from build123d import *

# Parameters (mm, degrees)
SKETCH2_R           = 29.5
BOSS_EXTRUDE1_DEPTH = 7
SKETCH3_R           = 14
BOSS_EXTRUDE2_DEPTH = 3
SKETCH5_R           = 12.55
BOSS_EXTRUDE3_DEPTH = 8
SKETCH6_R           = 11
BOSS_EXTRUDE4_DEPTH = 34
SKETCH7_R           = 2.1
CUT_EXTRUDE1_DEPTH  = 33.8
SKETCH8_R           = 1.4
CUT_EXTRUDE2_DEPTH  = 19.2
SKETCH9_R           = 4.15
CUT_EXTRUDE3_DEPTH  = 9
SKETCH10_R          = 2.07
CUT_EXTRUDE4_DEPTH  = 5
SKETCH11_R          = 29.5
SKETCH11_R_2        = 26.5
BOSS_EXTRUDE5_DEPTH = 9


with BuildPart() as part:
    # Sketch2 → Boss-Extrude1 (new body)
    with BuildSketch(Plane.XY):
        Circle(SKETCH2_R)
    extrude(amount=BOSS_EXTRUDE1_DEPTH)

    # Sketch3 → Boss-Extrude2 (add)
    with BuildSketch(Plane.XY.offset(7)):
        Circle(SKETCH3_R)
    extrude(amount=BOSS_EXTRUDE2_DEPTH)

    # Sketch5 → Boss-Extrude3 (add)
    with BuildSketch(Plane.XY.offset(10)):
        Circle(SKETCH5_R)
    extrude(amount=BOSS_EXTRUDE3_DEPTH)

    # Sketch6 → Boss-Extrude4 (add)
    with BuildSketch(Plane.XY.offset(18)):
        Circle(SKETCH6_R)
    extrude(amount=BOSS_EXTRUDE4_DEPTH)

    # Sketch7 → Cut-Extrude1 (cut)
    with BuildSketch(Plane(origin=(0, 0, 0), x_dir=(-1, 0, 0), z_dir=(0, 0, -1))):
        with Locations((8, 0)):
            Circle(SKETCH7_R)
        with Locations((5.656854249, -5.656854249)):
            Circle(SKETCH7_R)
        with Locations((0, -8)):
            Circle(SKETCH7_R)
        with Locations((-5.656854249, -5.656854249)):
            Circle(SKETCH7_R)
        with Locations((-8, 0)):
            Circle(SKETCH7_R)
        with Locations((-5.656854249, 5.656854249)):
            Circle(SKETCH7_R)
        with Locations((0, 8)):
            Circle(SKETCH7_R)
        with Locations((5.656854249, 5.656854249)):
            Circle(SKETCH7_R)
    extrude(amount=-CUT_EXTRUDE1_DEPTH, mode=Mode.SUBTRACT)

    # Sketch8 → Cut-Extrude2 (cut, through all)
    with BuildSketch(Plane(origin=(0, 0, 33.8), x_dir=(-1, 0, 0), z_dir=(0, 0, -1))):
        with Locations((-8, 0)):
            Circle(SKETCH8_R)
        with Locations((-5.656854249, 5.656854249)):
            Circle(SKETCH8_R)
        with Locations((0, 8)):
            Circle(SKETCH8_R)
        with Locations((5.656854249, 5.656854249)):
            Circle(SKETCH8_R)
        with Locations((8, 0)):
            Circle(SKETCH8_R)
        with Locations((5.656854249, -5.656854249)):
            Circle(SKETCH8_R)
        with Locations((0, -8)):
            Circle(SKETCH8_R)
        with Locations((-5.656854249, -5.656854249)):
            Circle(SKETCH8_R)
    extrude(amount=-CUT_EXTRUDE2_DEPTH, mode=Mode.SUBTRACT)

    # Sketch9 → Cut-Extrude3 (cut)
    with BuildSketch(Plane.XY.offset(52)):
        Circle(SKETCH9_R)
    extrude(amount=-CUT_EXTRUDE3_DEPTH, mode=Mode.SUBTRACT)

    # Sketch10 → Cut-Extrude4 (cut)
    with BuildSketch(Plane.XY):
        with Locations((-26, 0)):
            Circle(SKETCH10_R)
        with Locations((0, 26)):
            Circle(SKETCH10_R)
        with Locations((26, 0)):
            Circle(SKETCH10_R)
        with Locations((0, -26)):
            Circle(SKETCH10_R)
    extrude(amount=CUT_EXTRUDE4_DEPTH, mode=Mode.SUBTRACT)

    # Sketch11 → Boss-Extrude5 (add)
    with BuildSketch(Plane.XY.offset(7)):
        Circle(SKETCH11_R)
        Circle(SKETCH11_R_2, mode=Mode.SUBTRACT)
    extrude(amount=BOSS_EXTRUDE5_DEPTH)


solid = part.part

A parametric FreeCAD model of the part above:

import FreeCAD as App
import Part
import Sketcher

V = App.Vector
Q = App.Units.Quantity

doc = App.newDocument("Part")
params = doc.addObject("Spreadsheet::Sheet", "Params")
for row, (alias, value) in enumerate([
    ("sketch1_diameter", "59 mm"),
    ("pad1_length", "7 mm"),
    ("sketch2_diameter", "28 mm"),
    ("pad2_length", "3 mm"),
    ("sketch3_diameter", "25.1 mm"),
    ("pad3_length", "8 mm"),
    ("sketch4_diameter", "22 mm"),
    ("pad4_length", "34 mm"),
    ("sketch5_diameter", "4.2 mm"),
    ("pocket1_length", "33.8 mm"),
    ("sketch6_diameter", "2.8 mm"),
    ("sketch7_diameter", "8.3 mm"),
    ("pocket3_length", "9 mm"),
    ("sketch8_diameter", "4.14 mm"),
    ("pocket4_length", "5 mm"),
    ("sketch9_diameter", "59 mm"),
    ("sketch9_diameter2", "53 mm"),
    ("pad5_length", "9 mm"),
], start=1):
    params.set(f"A{row}", alias)
    params.set(f"B{row}", "=" + value)
    params.setAlias(f"B{row}", alias)

body = doc.addObject("PartDesign::Body", "Body")

# Sketch on XY plane
sketch1 = body.newObject("Sketcher::SketchObject", "Sketch")
sketch1.AttachmentSupport = (doc.getObject("XY_Plane"), [""])
sketch1.MapMode = "FlatFace"
sketch1.addGeometry(Part.Circle(V(0, 0, 0), V(0, 0, 1), 30), False)
sketch1.addConstraint([
    Sketcher.Constraint("Coincident", 0, 3, -1, 1),
    Sketcher.Constraint("Diameter", 0, Q("59 mm")),
])
sketch1.setExpression("Constraints[1]", "Params.sketch1_diameter")
pad1 = body.newObject("PartDesign::Pad", "Pad")
pad1.Profile = sketch1
pad1.setExpression("Length", "Params.pad1_length")

# Sketch on XY plane
sketch2 = body.newObject("Sketcher::SketchObject", "Sketch001")
sketch2.AttachmentSupport = (doc.getObject("XY_Plane"), [""])
sketch2.MapMode = "FlatFace"
sketch2.AttachmentOffset = App.Placement(V(0, 0, 7), App.Rotation())
sketch2.addGeometry(Part.Circle(V(0, 0, 0), V(0, 0, 1), 14), False)
sketch2.addConstraint([
    Sketcher.Constraint("Coincident", 0, 3, -1, 1),
    Sketcher.Constraint("Diameter", 0, Q("28 mm")),
])
sketch2.setExpression("Constraints[1]", "Params.sketch2_diameter")
pad2 = body.newObject("PartDesign::Pad", "Pad001")
pad2.Profile = sketch2
pad2.setExpression("Length", "Params.pad2_length")

# Sketch on XY plane
sketch3 = body.newObject("Sketcher::SketchObject", "Sketch002")
sketch3.AttachmentSupport = (doc.getObject("XY_Plane"), [""])
sketch3.MapMode = "FlatFace"
sketch3.AttachmentOffset = App.Placement(V(0, 0, 10), App.Rotation())
sketch3.addGeometry(Part.Circle(V(0, 0, 0), V(0, 0, 1), 13), False)
sketch3.addConstraint([
    Sketcher.Constraint("Coincident", 0, 3, -1, 1),
    Sketcher.Constraint("Diameter", 0, Q("25.1 mm")),
])
sketch3.setExpression("Constraints[1]", "Params.sketch3_diameter")
pad3 = body.newObject("PartDesign::Pad", "Pad002")
pad3.Profile = sketch3
pad3.setExpression("Length", "Params.pad3_length")

# Sketch on XY plane
sketch4 = body.newObject("Sketcher::SketchObject", "Sketch003")
sketch4.AttachmentSupport = (doc.getObject("XY_Plane"), [""])
sketch4.MapMode = "FlatFace"
sketch4.AttachmentOffset = App.Placement(V(0, 0, 18), App.Rotation())
sketch4.addGeometry(Part.Circle(V(0, 0, 0), V(0, 0, 1), 11), False)
sketch4.addConstraint([
    Sketcher.Constraint("Coincident", 0, 3, -1, 1),
    Sketcher.Constraint("Diameter", 0, Q("22 mm")),
])
sketch4.setExpression("Constraints[1]", "Params.sketch4_diameter")
pad4 = body.newObject("PartDesign::Pad", "Pad003")
pad4.Profile = sketch4
pad4.setExpression("Length", "Params.pad4_length")

# Sketch on XY plane
sketch5 = body.newObject("Sketcher::SketchObject", "Sketch004")
sketch5.AttachmentSupport = (doc.getObject("XY_Plane"), [""])
sketch5.MapMode = "FlatFace"
sketch5.addGeometry([
    Part.Circle(V(-8, 0, 0), V(0, 0, 1), 2.1),  # 0
    Part.Circle(V(-5.7, -5.7, 0), V(0, 0, 1), 2.1),  # 1
    Part.Circle(V(0, -8, 0), V(0, 0, 1), 2.1),  # 2
    Part.Circle(V(5.7, -5.7, 0), V(0, 0, 1), 2.1),  # 3
    Part.Circle(V(8, 0, 0), V(0, 0, 1), 2.1),  # 4
    Part.Circle(V(5.7, 5.7, 0), V(0, 0, 1), 2.1),  # 5
    Part.Circle(V(0, 8, 0), V(0, 0, 1), 2.1),  # 6
    Part.Circle(V(-5.7, 5.7, 0), V(0, 0, 1), 2.1),  # 7
], False)
sketch5.addConstraint([
    Sketcher.Constraint("Equal", 0, 1),
    Sketcher.Constraint("Equal", 1, 2),
    Sketcher.Constraint("Equal", 2, 3),
    Sketcher.Constraint("Equal", 3, 4),
    Sketcher.Constraint("Equal", 4, 5),
    Sketcher.Constraint("Equal", 5, 6),
    Sketcher.Constraint("Equal", 6, 7),
    Sketcher.Constraint("Symmetric", 0, 3, 4, 3, -1, 1),
    Sketcher.Constraint("Symmetric", 1, 3, 5, 3, -1, 1),
    Sketcher.Constraint("Symmetric", 2, 3, 6, 3, -1, 1),
    Sketcher.Constraint("Symmetric", 3, 3, 7, 3, -1, 1),
    Sketcher.Constraint("Symmetric", 1, 3, 3, 3, -2),
    Sketcher.Constraint("PointOnObject", 0, 3, -1),
    Sketcher.Constraint("PointOnObject", 2, 3, -2),
    Sketcher.Constraint("Diameter", 0, Q("4.2 mm")),
    Sketcher.Constraint("DistanceX", 0, 3, -1, 1, Q("8 mm")),
    Sketcher.Constraint("DistanceY", 2, 3, -1, 1, Q("8 mm")),
    Sketcher.Constraint("DistanceX", 1, 3, 3, 3, Q("11.313708 mm")),
    Sketcher.Constraint("DistanceY", 3, 3, 5, 3, Q("11.313708 mm")),
])
sketch5.setExpression("Constraints[14]", "Params.sketch5_diameter")
pocket1 = body.newObject("PartDesign::Pocket", "Pocket")
pocket1.Profile = sketch5
pocket1.setExpression("Length", "Params.pocket1_length")
pocket1.Reversed = True

# Sketch on XY plane
sketch6 = body.newObject("Sketcher::SketchObject", "Sketch005")
sketch6.AttachmentSupport = (doc.getObject("XY_Plane"), [""])
sketch6.MapMode = "FlatFace"
sketch6.AttachmentOffset = App.Placement(V(0, 0, 33.8), App.Rotation())
sketch6.addGeometry([
    Part.Circle(V(8, 0, 0), V(0, 0, 1), 1.4),  # 0
    Part.Circle(V(5.7, 5.7, 0), V(0, 0, 1), 1.4),  # 1
    Part.Circle(V(0, 8, 0), V(0, 0, 1), 1.4),  # 2
    Part.Circle(V(-5.7, 5.7, 0), V(0, 0, 1), 1.4),  # 3
    Part.Circle(V(-8, 0, 0), V(0, 0, 1), 1.4),  # 4
    Part.Circle(V(-5.7, -5.7, 0), V(0, 0, 1), 1.4),  # 5
    Part.Circle(V(0, -8, 0), V(0, 0, 1), 1.4),  # 6
    Part.Circle(V(5.7, -5.7, 0), V(0, 0, 1), 1.4),  # 7
], False)
sketch6.addConstraint([
    Sketcher.Constraint("Equal", 0, 1),
    Sketcher.Constraint("Equal", 1, 2),
    Sketcher.Constraint("Equal", 2, 3),
    Sketcher.Constraint("Equal", 3, 4),
    Sketcher.Constraint("Equal", 4, 5),
    Sketcher.Constraint("Equal", 5, 6),
    Sketcher.Constraint("Equal", 6, 7),
    Sketcher.Constraint("Symmetric", 0, 3, 4, 3, -1, 1),
    Sketcher.Constraint("Symmetric", 1, 3, 5, 3, -1, 1),
    Sketcher.Constraint("Symmetric", 2, 3, 6, 3, -1, 1),
    Sketcher.Constraint("Symmetric", 3, 3, 7, 3, -1, 1),
    Sketcher.Constraint("Symmetric", 1, 3, 3, 3, -2),
    Sketcher.Constraint("PointOnObject", 0, 3, -1),
    Sketcher.Constraint("PointOnObject", 2, 3, -2),
    Sketcher.Constraint("Diameter", 0, Q("2.8 mm")),
    Sketcher.Constraint("DistanceX", -1, 1, 0, 3, Q("8 mm")),
    Sketcher.Constraint("DistanceY", -1, 1, 2, 3, Q("8 mm")),
    Sketcher.Constraint("DistanceX", 3, 3, 1, 3, Q("11.313708 mm")),
    Sketcher.Constraint("DistanceY", 5, 3, 3, 3, Q("11.313708 mm")),
])
sketch6.setExpression("Constraints[14]", "Params.sketch6_diameter")
pocket2 = body.newObject("PartDesign::Pocket", "Pocket001")
pocket2.Profile = sketch6
pocket2.Type = "ThroughAll"
pocket2.Reversed = True

# Sketch on XY plane
sketch7 = body.newObject("Sketcher::SketchObject", "Sketch006")
sketch7.AttachmentSupport = (doc.getObject("XY_Plane"), [""])
sketch7.MapMode = "FlatFace"
sketch7.AttachmentOffset = App.Placement(V(0, 0, 52), App.Rotation())
sketch7.addGeometry(Part.Circle(V(0, 0, 0), V(0, 0, 1), 4.2), False)
sketch7.addConstraint([
    Sketcher.Constraint("Coincident", 0, 3, -1, 1),
    Sketcher.Constraint("Diameter", 0, Q("8.3 mm")),
])
sketch7.setExpression("Constraints[1]", "Params.sketch7_diameter")
pocket3 = body.newObject("PartDesign::Pocket", "Pocket002")
pocket3.Profile = sketch7
pocket3.setExpression("Length", "Params.pocket3_length")

# Sketch on XY plane
sketch8 = body.newObject("Sketcher::SketchObject", "Sketch007")
sketch8.AttachmentSupport = (doc.getObject("XY_Plane"), [""])
sketch8.MapMode = "FlatFace"
sketch8.addGeometry([
    Part.Circle(V(-26, 0, 0), V(0, 0, 1), 2.1),
    Part.Circle(V(0, 26, 0), V(0, 0, 1), 2.1),
    Part.Circle(V(26, 0, 0), V(0, 0, 1), 2.1),
    Part.Circle(V(0, -26, 0), V(0, 0, 1), 2.1),
], False)
sketch8.addConstraint([
    Sketcher.Constraint("Equal", 0, 1),
    Sketcher.Constraint("Equal", 1, 2),
    Sketcher.Constraint("Equal", 2, 3),
    Sketcher.Constraint("Symmetric", 0, 3, 2, 3, -1, 1),
    Sketcher.Constraint("Symmetric", 1, 3, 3, 3, -1, 1),
    Sketcher.Constraint("PointOnObject", 0, 3, -1),
    Sketcher.Constraint("PointOnObject", 1, 3, -2),
    Sketcher.Constraint("Diameter", 0, Q("4.14 mm")),
    Sketcher.Constraint("DistanceX", 0, 3, -1, 1, Q("26 mm")),
    Sketcher.Constraint("DistanceY", -1, 1, 1, 3, Q("26 mm")),
])
sketch8.setExpression("Constraints[7]", "Params.sketch8_diameter")
pocket4 = body.newObject("PartDesign::Pocket", "Pocket003")
pocket4.Profile = sketch8
pocket4.setExpression("Length", "Params.pocket4_length")
pocket4.Reversed = True

# Sketch on XY plane
sketch9 = body.newObject("Sketcher::SketchObject", "Sketch008")
sketch9.AttachmentSupport = (doc.getObject("XY_Plane"), [""])
sketch9.MapMode = "FlatFace"
sketch9.AttachmentOffset = App.Placement(V(0, 0, 7), App.Rotation())
sketch9.addGeometry([
    Part.Circle(V(0, 0, 0), V(0, 0, 1), 30),
    Part.Circle(V(0, 0, 0), V(0, 0, 1), 26),
], False)
sketch9.addConstraint([
    Sketcher.Constraint("Coincident", 0, 3, -1, 1),
    Sketcher.Constraint("Coincident", 1, 3, -1, 1),
    Sketcher.Constraint("Diameter", 0, Q("59 mm")),
    Sketcher.Constraint("Diameter", 1, Q("53 mm")),
])
sketch9.setExpression("Constraints[2]", "Params.sketch9_diameter")
sketch9.setExpression("Constraints[3]", "Params.sketch9_diameter2")
pad5 = body.newObject("PartDesign::Pad", "Pad004")
pad5.Profile = sketch9
pad5.setExpression("Length", "Params.pad5_length")

doc.recompute()
